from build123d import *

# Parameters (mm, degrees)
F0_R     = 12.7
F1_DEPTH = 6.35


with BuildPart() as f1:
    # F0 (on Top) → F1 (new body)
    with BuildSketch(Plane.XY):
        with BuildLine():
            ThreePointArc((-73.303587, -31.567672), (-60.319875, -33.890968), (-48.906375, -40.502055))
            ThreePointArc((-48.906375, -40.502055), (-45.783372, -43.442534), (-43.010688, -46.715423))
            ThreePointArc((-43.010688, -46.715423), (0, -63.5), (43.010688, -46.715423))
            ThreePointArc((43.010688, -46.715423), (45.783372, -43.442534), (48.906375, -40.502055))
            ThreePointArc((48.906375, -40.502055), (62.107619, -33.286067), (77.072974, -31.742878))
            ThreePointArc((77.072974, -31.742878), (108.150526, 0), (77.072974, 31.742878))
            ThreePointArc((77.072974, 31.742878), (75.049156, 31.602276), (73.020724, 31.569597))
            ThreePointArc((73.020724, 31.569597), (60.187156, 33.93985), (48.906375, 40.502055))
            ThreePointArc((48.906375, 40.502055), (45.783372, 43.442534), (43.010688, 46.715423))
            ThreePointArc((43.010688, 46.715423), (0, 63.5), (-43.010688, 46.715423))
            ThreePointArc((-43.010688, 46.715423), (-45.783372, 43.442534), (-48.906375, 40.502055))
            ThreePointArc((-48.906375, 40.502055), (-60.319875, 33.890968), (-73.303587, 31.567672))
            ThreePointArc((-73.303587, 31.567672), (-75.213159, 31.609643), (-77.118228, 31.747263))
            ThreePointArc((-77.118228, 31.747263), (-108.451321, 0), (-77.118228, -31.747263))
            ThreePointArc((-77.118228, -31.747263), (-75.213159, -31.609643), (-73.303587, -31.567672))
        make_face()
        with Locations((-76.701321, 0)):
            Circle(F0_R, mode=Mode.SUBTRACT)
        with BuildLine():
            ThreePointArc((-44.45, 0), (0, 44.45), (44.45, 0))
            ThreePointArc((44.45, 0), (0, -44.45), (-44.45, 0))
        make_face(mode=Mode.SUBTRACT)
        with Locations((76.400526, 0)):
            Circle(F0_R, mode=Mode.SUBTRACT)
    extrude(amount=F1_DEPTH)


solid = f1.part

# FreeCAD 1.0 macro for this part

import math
import FreeCAD as App
import Part
import Sketcher
from FreeCAD import Vector
Q = App.Units.Quantity

doc = App.newDocument("Part")
params = doc.addObject("Spreadsheet::Sheet", "Params")
for row, (alias, value) in enumerate([
    ("sketch1_diameter", "1 in"),
    ("sketch1_diameter2", "3.5 in"),
    ("sketch1_radius", "1.5000001 in"),
    ("sketch1_radius2", "2.5 in"),
    ("sketch1_radius3", "1.25 in"),
    ("pad1_length", "0.25 in"),
], start=1):
    params.set(f"A{row}", alias)
    params.set(f"B{row}", "=" + value)
    params.setAlias(f"B{row}", alias)

body = doc.addObject("PartDesign::Body", "Body")

# Sketch on XY plane
sketch1 = body.newObject("Sketcher::SketchObject", "Sketch")
sketch1.AttachmentSupport = (doc.getObject("XY_Plane"), [""])
sketch1.MapMode = "FlatFace"
sketch1.addGeometry(Part.ArcOfCircle(Part.Circle(Vector(-73.4, -69.7, 0), Vector(0, 0, 1), 38.1), math.radians(50), math.radians(90)), False)
sketch1.addGeometry(Part.ArcOfCircle(Part.Circle(Vector(-73.4, -69.7, 0), Vector(0, 0, 1), 38.1), math.radians(37.04), math.radians(49.95)), False)
sketch1.addGeometry(Part.ArcOfCircle(Part.Circle(Vector(0, 0, 0), Vector(0, 0, 1), 63.5), math.radians(-133), math.radians(-47)), False)
sketch1.addGeometry(Part.ArcOfCircle(Part.Circle(Vector(73.4, -69.7, 0), Vector(0, 0, 1), 38.1), math.radians(130.05), math.radians(142.96)), False)
sketch1.addGeometry(Part.ArcOfCircle(Part.Circle(Vector(73.4, -69.7, 0), Vector(0, 0, 1), 38.1), math.radians(85), math.radians(130)), False)
sketch1.addGeometry(Part.ArcOfCircle(Part.Circle(Vector(76.4, 0, 0), Vector(0, 0, 1), 31.7), math.radians(-89), math.radians(89)), False)
sketch1.addGeometry(Part.ArcOfCircle(Part.Circle(Vector(73.4, 69.7, 0), Vector(0, 0, 1), 38.1), math.radians(-90.6), math.radians(-84.5)), False)
sketch1.addGeometry(Part.ArcOfCircle(Part.Circle(Vector(73.4, 69.7, 0), Vector(0, 0, 1), 38.1), math.radians(-130), math.radians(-91)), False)
sketch1.addGeometry(Part.ArcOfCircle(Part.Circle(Vector(73.4, 69.7, 0), Vector(0, 0, 1), 38.1), math.radians(-142.96), math.radians(-130.05)), False)
sketch1.addGeometry(Part.ArcOfCircle(Part.Circle(Vector(0, 0, 0), Vector(0, 0, 1), 63.5), math.radians(47), math.radians(133)), False)
sketch1.addGeometry(Part.ArcOfCircle(Part.Circle(Vector(-73.4, 69.7, 0), Vector(0, 0, 1), 38.1), math.radians(-49.95), math.radians(-37.04)), False)
sketch1.addGeometry(Part.ArcOfCircle(Part.Circle(Vector(-73.4, 69.7, 0), Vector(0, 0, 1), 38.1), math.radians(-90), math.radians(-50)), False)
sketch1.addGeometry(Part.ArcOfCircle(Part.Circle(Vector(-73.4, 69.7, 0), Vector(0, 0, 1), 38.1), math.radians(-95.57), math.radians(-89.82)), False)
sketch1.addGeometry(Part.ArcOfCircle(Part.Circle(Vector(-76.7, 0, 0), Vector(0, 0, 1), 31.8), math.radians(91), math.radians(269)), False)
sketch1.addGeometry(Part.ArcOfCircle(Part.Circle(Vector(-73.4, -69.7, 0), Vector(0, 0, 1), 38.1), math.radians(89.82), math.radians(95.57)), False)
sketch1.addGeometry(Part.Circle(Vector(-76.7, 0, 0), Vector(0, 0, 1), 12.7), False)
sketch1.addGeometry(Part.Circle(Vector(0, 0, 0), Vector(0, 0, 1), 44.5), False)
sketch1.addGeometry(Part.Circle(Vector(76.4, 0, 0), Vector(0, 0, 1), 12.7), False)
sketch1.addConstraint(Sketcher.Constraint("Tangent", 0, 1, 1, 2))
sketch1.addConstraint(Sketcher.Constraint("Coincident", 1, 1, 2, 1))
sketch1.addConstraint(Sketcher.Constraint("Coincident", 2, 2, 3, 2))
sketch1.addConstraint(Sketcher.Constraint("Tangent", 3, 1, 4, 2))
sketch1.addConstraint(Sketcher.Constraint("Coincident", 4, 1, 5, 1))
sketch1.addConstraint(Sketcher.Constraint("Coincident", 5, 2, 6, 2))
sketch1.addConstraint(Sketcher.Constraint("Tangent", 6, 1, 7, 2))
sketch1.addConstraint(Sketcher.Constraint("Tangent", 7, 1, 8, 2))
sketch1.addConstraint(Sketcher.Constraint("Coincident", 8, 1, 9, 1))
sketch1.addConstraint(Sketcher.Constraint("Coincident", 9, 2, 10, 2))
sketch1.addConstraint(Sketcher.Constraint("Tangent", 10, 1, 11, 2))
sketch1.addConstraint(Sketcher.Constraint("Tangent", 11, 1, 12, 2))
sketch1.addConstraint(Sketcher.Constraint("Coincident", 12, 1, 13, 1))
sketch1.addConstraint(Sketcher.Constraint("Coincident", 13, 2, 14, 2))
sketch1.addConstraint(Sketcher.Constraint("Tangent", 14, 1, 0, 2))
sketch1.addConstraint(Sketcher.Constraint("Coincident", 2, 3, -1, 1))
sketch1.addConstraint(Sketcher.Constraint("Coincident", 9, 3, -1, 1))
sketch1.addConstraint(Sketcher.Constraint("Coincident", 16, 3, -1, 1))
sketch1.addConstraint(Sketcher.Constraint("Coincident", 15, 3, 13, 3))
sketch1.addConstraint(Sketcher.Constraint("Coincident", 17, 3, 5, 3))
sketch1.addConstraint(Sketcher.Constraint("Equal", 0, 1))
sketch1.addConstraint(Sketcher.Constraint("Equal", 1, 3))
sketch1.addConstraint(Sketcher.Constraint("Equal", 3, 4))
sketch1.addConstraint(Sketcher.Constraint("Equal", 3, 7))
sketch1.addConstraint(Sketcher.Constraint("Equal", 7, 8))
sketch1.addConstraint(Sketcher.Constraint("Equal", 2, 9))
sketch1.addConstraint(Sketcher.Constraint("Equal", 8, 10))
sketch1.addConstraint(Sketcher.Constraint("Equal", 10, 11))
sketch1.addConstraint(Sketcher.Constraint("Equal", 5, 13))
sketch1.addConstraint(Sketcher.Constraint("Equal", 12, 14))
sketch1.addConstraint(Sketcher.Constraint("Equal", 15, 17))
sketch1.addConstraint(Sketcher.Constraint("Symmetric", 0, 3, 7, 3, -1, 1))
sketch1.addConstraint(Sketcher.Constraint("Symmetric", 3, 3, 10, 3, -1, 1))
sketch1.addConstraint(Sketcher.Constraint("Symmetric", 0, 3, 3, 3, -2))
sketch1.addConstraint(Sketcher.Constraint("PointOnObject", 5, 3, -1))
sketch1.addConstraint(Sketcher.Constraint("PointOnObject", 13, 3, -1))
sketch1.addConstraint(Sketcher.Constraint("Horizontal", 0, 1, 3, 1))
sketch1.addConstraint(Sketcher.Constraint("Horizontal", 7, 1, 10, 1))
sketch1.addConstraint(Sketcher.Constraint("Vertical", 3, 1, 7, 1))
sketch1.addConstraint(Sketcher.Constraint("Vertical", 11, 1, 14, 1))
sketch1.addConstraint(Sketcher.Constraint("Diameter", 15, Q("1 in")))
sketch1.addConstraint(Sketcher.Constraint("Diameter", 16, Q("3.5 in")))
sketch1.addConstraint(Sketcher.Constraint("Radius", 0, Q("1.5000001 in")))
sketch1.addConstraint(Sketcher.Constraint("Radius", 2, Q("2.5 in")))
sketch1.addConstraint(Sketcher.Constraint("Radius", 5, Q("1.25 in")))
sketch1.addConstraint(Sketcher.Constraint("Radius", 6, Q("38.099851 mm")))
sketch1.addConstraint(Sketcher.Constraint("Radius", 12, Q("38.099622 mm")))
sketch1.addConstraint(Sketcher.Constraint("DistanceY", 1, 3, 12, 3, Q("139.334602 mm")))
sketch1.addConstraint(Sketcher.Constraint("DistanceX", 13, 3, 1, 3, Q("3.279898 mm")))
sketch1.addConstraint(Sketcher.Constraint("DistanceX", 3, 1, 4, 1, Q("28.166599 mm")))
sketch1.addConstraint(Sketcher.Constraint("DistanceX", 6, 1, 17, 3, Q("3.379802 mm")))
sketch1.addConstraint(Sketcher.Constraint("DistanceX", 6, 1, 8, 3, Q("0.400698 mm")))
sketch1.addConstraint(Sketcher.Constraint("DistanceX", 11, 1, 9, 2, Q("30.292899 mm")))
sketch1.addConstraint(Sketcher.Constraint("DistanceX", 0, 3, -1, 1, Q("73.421421 mm")))
sketch1.setExpression("Constraints[40]", "Params.sketch1_diameter")
sketch1.setExpression("Constraints[41]", "Params.sketch1_diameter2")
sketch1.setExpression("Constraints[42]", "Params.sketch1_radius")
sketch1.setExpression("Constraints[43]", "Params.sketch1_radius2")
sketch1.setExpression("Constraints[44]", "Params.sketch1_radius3")
pad1 = body.newObject("PartDesign::Pad", "Pad")
pad1.Profile = sketch1
pad1.setExpression("Length", "Params.pad1_length")

doc.recompute()
